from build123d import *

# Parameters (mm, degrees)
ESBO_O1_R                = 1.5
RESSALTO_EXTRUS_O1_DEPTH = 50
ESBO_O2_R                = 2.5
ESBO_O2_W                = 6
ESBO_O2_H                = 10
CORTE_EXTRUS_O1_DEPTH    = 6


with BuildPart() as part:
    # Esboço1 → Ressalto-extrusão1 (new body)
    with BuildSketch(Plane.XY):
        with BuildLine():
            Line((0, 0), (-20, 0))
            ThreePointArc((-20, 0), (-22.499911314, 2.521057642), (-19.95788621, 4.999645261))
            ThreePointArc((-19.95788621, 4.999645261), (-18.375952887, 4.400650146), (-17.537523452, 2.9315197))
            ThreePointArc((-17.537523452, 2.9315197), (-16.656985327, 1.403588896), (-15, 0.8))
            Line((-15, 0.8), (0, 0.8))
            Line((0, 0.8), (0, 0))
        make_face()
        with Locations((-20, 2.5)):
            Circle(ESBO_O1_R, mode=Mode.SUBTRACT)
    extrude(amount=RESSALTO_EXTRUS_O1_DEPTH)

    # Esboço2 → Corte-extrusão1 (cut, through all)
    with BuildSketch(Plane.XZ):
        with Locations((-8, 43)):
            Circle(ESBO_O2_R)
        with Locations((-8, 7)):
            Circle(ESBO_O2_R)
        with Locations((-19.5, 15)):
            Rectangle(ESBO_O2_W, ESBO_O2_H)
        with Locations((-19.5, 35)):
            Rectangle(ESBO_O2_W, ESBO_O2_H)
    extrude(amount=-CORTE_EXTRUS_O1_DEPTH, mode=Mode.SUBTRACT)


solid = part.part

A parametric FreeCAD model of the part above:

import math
import FreeCAD as App
import Part
import Sketcher
Q = App.Units.Quantity


def add_polygon(sketch, points):
    """Adds a closed chain of lines whose ends are joined by coincident constraints."""
    first, n = sketch.GeometryCount, len(points)
    for a, b in zip(points, points[1:] + points[:1]):
        sketch.addGeometry(Part.LineSegment(App.Vector(*a, 0), App.Vector(*b, 0)), False)
    for i in range(n):
        sketch.addConstraint(Sketcher.Constraint("Coincident", first + i, 2, first + (i + 1) % n, 1))

doc = App.newDocument("Part")
body = doc.addObject("PartDesign::Body", "Body")

# Sketch on XY plane
sketch1 = body.newObject("Sketcher::SketchObject", "Sketch")
sketch1.AttachmentSupport = (doc.getObject("XY_Plane"), [""])
sketch1.MapMode = "FlatFace"
sketch1.addGeometry([
    Part.LineSegment(App.Vector(-20, 0, 0), App.Vector(0, 0, 0)),  # 0
    Part.LineSegment(App.Vector(0, 0, 0), App.Vector(0, 0.8, 0)),  # 1
    Part.LineSegment(App.Vector(0, 0.8, 0), App.Vector(-15, 0.8, 0)),  # 2
    Part.ArcOfCircle(Part.Circle(App.Vector(-15, 3.4, 0), App.Vector(0, 0, 1), 2.6), math.radians(-170), math.radians(-90)),  # 3
    Part.ArcOfCircle(Part.Circle(App.Vector(-20, 2.5, 0), App.Vector(0, 0, 1), 2.5), math.radians(10), math.radians(89)),  # 4
    Part.ArcOfCircle(Part.Circle(App.Vector(-20, 2.5, 0), App.Vector(0, 0, 1), 2.5), math.radians(89), math.radians(270)),  # 5
    Part.Circle(App.Vector(-20, 2.5, 0), App.Vector(0, 0, 1), 1.5),  # 6
], False)
sketch1.addConstraint([
    Sketcher.Constraint("Coincident", 0, 2, 1, 1),
    Sketcher.Constraint("Coincident", 1, 2, 2, 1),
    Sketcher.Constraint("Tangent", 2, 2, 3, 2),
    Sketcher.Constraint("Tangent", 3, 1, 4, 1),
    Sketcher.Constraint("Tangent", 4, 2, 5, 1),
    Sketcher.Constraint("Tangent", 5, 2, 0, 1),
    Sketcher.Constraint("Horizontal", 0),
    Sketcher.Constraint("Vertical", 1),
    Sketcher.Constraint("Horizontal", 2),
    Sketcher.Constraint("Coincident", 0, 2, -1, 1),
    Sketcher.Constraint("Coincident", 6, 3, 4, 3),
    Sketcher.Constraint("Equal", 4, 5),
    Sketcher.Constraint("Diameter", 6, Q("3 mm")),
    Sketcher.Constraint("Radius", 4, Q("2.5 mm")),
    Sketcher.Constraint("DistanceX", 0, 1, 0, 2, Q("20 mm")),
    Sketcher.Constraint("DistanceX", 2, 2, 2, 1, Q("15 mm")),
    Sketcher.Constraint("DistanceY", 1, 1, 1, 2, Q("0.8 mm")),
    Sketcher.Constraint("DistanceX", 4, 2, -1, 1, Q("19.957886 mm")),
])
pad1 = body.newObject("PartDesign::Pad", "Pad")
pad1.Profile = sketch1
pad1.Length = 50

# Sketch on XZ plane
sketch2 = body.newObject("Sketcher::SketchObject", "Sketch001")
sketch2.AttachmentSupport = (doc.getObject("XZ_Plane"), [""])
sketch2.MapMode = "FlatFace"
sketch2.addGeometry(Part.Circle(App.Vector(-8, 43, 0), App.Vector(0, 0, 1), 2.5), False)  # 0
sketch2.addGeometry(Part.Circle(App.Vector(-8, 7, 0), App.Vector(0, 0, 1), 2.5), False)  # 1
add_polygon(sketch2, [(-22.5, 20), (-22.5, 10), (-16.5, 10), (-16.5, 20)])  # lines 2-5
add_polygon(sketch2, [(-22.5, 40), (-22.5, 30), (-16.5, 30), (-16.5, 40)])  # lines 6-9
sketch2.addConstraint([
    Sketcher.Constraint("Vertical", 2),
    Sketcher.Constraint("Horizontal", 3),
    Sketcher.Constraint("Vertical", 4),
    Sketcher.Constraint("Horizontal", 5),
    Sketcher.Constraint("Vertical", 6),
    Sketcher.Constraint("Horizontal", 7),
    Sketcher.Constraint("Vertical", 8),
    Sketcher.Constraint("Horizontal", 9),
    Sketcher.Constraint("Equal", 0, 1),
    Sketcher.Constraint("Vertical", 0, 3, 1, 3),
    Sketcher.Constraint("Vertical", 5, 2, 6, 2),
    Sketcher.Constraint("Vertical", 4, 2, 7, 2),
    Sketcher.Constraint("Equal", 4, 6),
    Sketcher.Constraint("Diameter", 0, Q("5 mm")),
    Sketcher.Constraint("DistanceX", 3, 1, 3, 2, Q("6 mm")),
    Sketcher.Constraint("DistanceY", 2, 2, 2, 1, Q("10 mm")),
    Sketcher.Constraint("DistanceX", 0, 3, -1, 1, Q("8 mm")),
    Sketcher.Constraint("DistanceY", -1, 1, 0, 3, Q("43 mm")),
    Sketcher.Constraint("DistanceY", -1, 1, 1, 3, Q("7 mm")),
    Sketcher.Constraint("DistanceY", -1, 1, 2, 2, Q("10 mm")),
    Sketcher.Constraint("DistanceY", -1, 1, 6, 2, Q("30 mm")),
    Sketcher.Constraint("DistanceX", 2, 2, -1, 1, Q("22.5 mm")),
])
pocket1 = body.newObject("PartDesign::Pocket", "Pocket")
pocket1.Profile = sketch2
pocket1.Type = "ThroughAll"

doc.recompute()
